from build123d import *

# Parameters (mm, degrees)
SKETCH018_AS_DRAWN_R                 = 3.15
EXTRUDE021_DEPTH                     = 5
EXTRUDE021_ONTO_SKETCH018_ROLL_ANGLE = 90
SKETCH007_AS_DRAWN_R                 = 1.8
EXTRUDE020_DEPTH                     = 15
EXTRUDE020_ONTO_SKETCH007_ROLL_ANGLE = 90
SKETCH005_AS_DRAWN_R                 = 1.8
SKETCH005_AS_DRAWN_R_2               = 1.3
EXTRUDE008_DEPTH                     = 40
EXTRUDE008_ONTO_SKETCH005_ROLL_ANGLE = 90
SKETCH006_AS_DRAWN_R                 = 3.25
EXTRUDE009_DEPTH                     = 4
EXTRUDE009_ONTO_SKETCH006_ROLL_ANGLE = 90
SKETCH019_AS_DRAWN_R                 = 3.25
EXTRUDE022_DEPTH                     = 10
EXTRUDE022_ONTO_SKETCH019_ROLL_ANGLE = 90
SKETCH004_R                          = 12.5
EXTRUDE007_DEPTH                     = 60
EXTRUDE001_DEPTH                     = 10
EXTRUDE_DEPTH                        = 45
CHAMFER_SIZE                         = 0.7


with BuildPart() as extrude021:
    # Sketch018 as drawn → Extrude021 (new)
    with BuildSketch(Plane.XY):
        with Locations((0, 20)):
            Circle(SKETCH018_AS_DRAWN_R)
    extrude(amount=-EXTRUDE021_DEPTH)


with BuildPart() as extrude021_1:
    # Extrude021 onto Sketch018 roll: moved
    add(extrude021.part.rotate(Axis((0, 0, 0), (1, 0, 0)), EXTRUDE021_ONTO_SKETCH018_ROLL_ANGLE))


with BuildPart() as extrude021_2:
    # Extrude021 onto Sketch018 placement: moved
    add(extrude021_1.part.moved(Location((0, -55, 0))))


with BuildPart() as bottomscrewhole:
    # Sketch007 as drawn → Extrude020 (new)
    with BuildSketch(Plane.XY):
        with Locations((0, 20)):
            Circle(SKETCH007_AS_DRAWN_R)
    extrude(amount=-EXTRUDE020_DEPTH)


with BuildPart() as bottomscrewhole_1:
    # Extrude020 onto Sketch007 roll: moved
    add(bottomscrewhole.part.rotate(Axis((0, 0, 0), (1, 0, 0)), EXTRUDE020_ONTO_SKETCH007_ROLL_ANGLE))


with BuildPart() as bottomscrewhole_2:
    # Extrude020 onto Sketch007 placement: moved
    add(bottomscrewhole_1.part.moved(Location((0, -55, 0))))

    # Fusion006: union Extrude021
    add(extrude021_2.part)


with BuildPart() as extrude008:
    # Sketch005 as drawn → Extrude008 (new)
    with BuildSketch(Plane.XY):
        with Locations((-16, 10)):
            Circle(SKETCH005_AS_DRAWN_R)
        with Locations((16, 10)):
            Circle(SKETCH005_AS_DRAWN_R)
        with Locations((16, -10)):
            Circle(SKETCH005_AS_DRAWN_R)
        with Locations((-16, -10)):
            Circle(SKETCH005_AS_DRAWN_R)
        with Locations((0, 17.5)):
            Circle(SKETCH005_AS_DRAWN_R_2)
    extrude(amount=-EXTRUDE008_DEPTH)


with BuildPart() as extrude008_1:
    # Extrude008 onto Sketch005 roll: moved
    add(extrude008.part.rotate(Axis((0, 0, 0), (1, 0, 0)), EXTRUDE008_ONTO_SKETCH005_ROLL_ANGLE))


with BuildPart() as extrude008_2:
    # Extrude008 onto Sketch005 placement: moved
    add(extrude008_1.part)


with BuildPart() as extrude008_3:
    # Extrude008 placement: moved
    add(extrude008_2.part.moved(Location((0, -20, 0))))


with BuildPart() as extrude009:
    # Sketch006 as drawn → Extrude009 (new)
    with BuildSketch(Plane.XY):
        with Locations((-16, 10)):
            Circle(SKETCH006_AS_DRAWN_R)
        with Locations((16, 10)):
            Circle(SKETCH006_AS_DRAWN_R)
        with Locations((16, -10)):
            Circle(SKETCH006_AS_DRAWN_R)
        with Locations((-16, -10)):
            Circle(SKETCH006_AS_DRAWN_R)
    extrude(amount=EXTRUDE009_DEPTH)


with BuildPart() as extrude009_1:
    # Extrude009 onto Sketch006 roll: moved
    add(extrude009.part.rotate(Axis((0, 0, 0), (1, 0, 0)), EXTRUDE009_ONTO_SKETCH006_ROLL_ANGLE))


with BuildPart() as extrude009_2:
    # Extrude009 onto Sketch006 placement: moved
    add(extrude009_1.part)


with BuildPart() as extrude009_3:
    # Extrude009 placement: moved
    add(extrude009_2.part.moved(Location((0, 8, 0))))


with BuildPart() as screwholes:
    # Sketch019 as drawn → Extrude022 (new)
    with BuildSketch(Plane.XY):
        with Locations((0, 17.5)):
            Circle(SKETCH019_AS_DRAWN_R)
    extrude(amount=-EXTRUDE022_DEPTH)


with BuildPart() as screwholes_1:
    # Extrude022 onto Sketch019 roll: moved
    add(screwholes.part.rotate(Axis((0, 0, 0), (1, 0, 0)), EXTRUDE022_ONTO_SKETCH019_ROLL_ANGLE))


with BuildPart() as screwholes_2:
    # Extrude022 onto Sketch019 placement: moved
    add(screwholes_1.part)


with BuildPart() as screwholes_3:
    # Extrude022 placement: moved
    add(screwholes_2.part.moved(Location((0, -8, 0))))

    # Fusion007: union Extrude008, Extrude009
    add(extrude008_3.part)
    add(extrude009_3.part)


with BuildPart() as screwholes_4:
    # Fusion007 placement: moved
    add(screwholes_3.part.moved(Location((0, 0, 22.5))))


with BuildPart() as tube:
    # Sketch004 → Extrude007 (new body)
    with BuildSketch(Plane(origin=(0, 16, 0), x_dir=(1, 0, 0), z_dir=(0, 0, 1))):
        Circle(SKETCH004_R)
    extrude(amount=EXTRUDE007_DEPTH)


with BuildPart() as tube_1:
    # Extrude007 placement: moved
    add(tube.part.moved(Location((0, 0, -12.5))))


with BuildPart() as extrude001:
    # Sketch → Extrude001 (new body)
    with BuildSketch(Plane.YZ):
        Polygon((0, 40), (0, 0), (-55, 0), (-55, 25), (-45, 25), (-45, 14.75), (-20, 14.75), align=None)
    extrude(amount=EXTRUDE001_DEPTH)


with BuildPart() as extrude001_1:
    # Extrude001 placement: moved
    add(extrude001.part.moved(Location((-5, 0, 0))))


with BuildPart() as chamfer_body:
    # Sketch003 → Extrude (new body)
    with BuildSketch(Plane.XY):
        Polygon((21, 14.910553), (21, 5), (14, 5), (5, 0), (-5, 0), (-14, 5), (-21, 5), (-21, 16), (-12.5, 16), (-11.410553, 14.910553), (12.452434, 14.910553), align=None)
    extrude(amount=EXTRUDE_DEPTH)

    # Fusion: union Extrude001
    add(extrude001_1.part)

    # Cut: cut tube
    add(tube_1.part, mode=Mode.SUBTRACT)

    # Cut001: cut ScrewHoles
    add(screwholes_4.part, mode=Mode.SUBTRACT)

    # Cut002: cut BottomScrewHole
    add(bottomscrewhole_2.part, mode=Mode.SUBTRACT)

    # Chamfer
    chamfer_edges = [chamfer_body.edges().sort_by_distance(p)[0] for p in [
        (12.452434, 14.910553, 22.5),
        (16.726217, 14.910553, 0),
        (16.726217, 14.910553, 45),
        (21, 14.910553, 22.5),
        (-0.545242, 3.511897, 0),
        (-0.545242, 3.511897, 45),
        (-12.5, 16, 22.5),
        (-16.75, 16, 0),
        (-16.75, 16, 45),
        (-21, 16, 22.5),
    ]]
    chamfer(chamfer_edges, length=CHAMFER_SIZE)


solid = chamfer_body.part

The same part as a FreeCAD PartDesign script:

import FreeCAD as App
import Part
import Sketcher
from FreeCAD import Vector
Q = App.Units.Quantity


def edges_at(feature, points):
    """Names of the edges that pass closest to the given points."""
    edges = feature.Shape.Edges
    near = lambda p: min(range(len(edges)), key=lambda i: edges[i].distToShape(Part.Vertex(*p))[0])
    return sorted({f"Edge{near(p) + 1}" for p in points})


def add_polygon(sketch, points):
    """Adds a closed chain of lines whose ends are joined by coincident constraints."""
    first, n = sketch.GeometryCount, len(points)
    for a, b in zip(points, points[1:] + points[:1]):
        sketch.addGeometry(Part.LineSegment(App.Vector(*a, 0), App.Vector(*b, 0)), False)
    for i in range(n):
        sketch.addConstraint(Sketcher.Constraint("Coincident", first + i, 2, first + (i + 1) % n, 1))

doc = App.newDocument("Part")
params = doc.addObject("Spreadsheet::Sheet", "Params")
for row, (alias, value) in enumerate([
    ("sketch1_diameter", "6.3 mm"),
    ("pad1_length", "5 mm"),
    ("sketch2_diameter", "3.6 mm"),
    ("pad2_length", "15 mm"),
    ("sketch3_diameter", "3.6 mm"),
    ("sketch3_diameter2", "2.6 mm"),
    ("pad3_length", "40 mm"),
    ("sketch4_diameter", "6.5 mm"),
    ("pad4_length", "4 mm"),
    ("sketch5_diameter", "6.5 mm"),
    ("pad5_length", "10 mm"),
    ("sketch6_diameter", "25 mm"),
    ("pad6_length", "60 mm"),
    ("sketch7_width", "25 mm"),
    ("sketch7_width2", "10 mm"),
    ("sketch7_width3", "55 mm"),
    ("sketch7_height", "40 mm"),
    ("sketch7_height2", "10.25 mm"),
    ("pad7_length", "10 mm"),
    ("sketch8_width", "7 mm"),
    ("sketch8_width2", "10 mm"),
    ("sketch8_height", "11 mm"),
    ("sketch8_width3", "8.5 mm"),
    ("pad8_length", "45 mm"),
    ("chamfer_size", "0.7 mm"),
], start=1):
    params.set(f"A{row}", alias)
    params.set(f"B{row}", "=" + value)
    params.setAlias(f"B{row}", alias)

body = doc.addObject("PartDesign::Body", "Body")

# Sketch on XY plane
sketch1 = doc.addObject("Sketcher::SketchObject", "Sketch")
body.addObject(sketch1)
sketch1.AttachmentSupport = (doc.XY_Plane, [""])
sketch1.MapMode = "FlatFace"
sketch1.addGeometry(Part.Circle(Vector(0, 20, 0), Vector(0, 0, 1), 3.1), False)
sketch1.addConstraint(Sketcher.Constraint("PointOnObject", 0, 3, -2))
sketch1.addConstraint(Sketcher.Constraint("Diameter", 0, 6.3))
sketch1.addConstraint(Sketcher.Constraint("DistanceY", -1, 1, 0, 3, 20.0))
sketch1.setExpression("Constraints[1]", "Params.sketch1_diameter")
pad1 = doc.addObject("PartDesign::Pad", "Pad")
body.addObject(pad1)
pad1.Profile = sketch1
pad1.setExpression("Length", "Params.pad1_length")
pad1.Reversed = True
body2 = doc.addObject("PartDesign::Body", "Body001")
doc.recompute()

body.Placement = App.Placement(Vector(0, 0, 0), App.Rotation(Vector(1, 0, 0), 90))
boolean = doc.addObject("PartDesign::Boolean", "Boolean")
body2.addObject(boolean)
boolean.Type = "Fuse"
boolean.addObjects([body])
body3 = doc.addObject("PartDesign::Body", "Body002")
doc.recompute()

body2.Placement = App.Placement(Vector(0, -55, 0), App.Rotation(Vector(0, 0, 1), 0))
boolean2 = doc.addObject("PartDesign::Boolean", "Boolean001")
body3.addObject(boolean2)
boolean2.Type = "Fuse"
boolean2.addObjects([body2])
body4 = doc.addObject("PartDesign::Body", "Body003")

# Sketch on XY plane
sketch2 = doc.addObject("Sketcher::SketchObject", "Sketch001")
body4.addObject(sketch2)
sketch2.AttachmentSupport = (doc.getObject("XY_Plane003"), [""])
sketch2.MapMode = "FlatFace"
sketch2.addGeometry(Part.Circle(Vector(0, 20, 0), Vector(0, 0, 1), 1.8), False)
sketch2.addConstraint(Sketcher.Constraint("PointOnObject", 0, 3, -2))
sketch2.addConstraint(Sketcher.Constraint("Diameter", 0, 3.6))
sketch2.addConstraint(Sketcher.Constraint("DistanceY", -1, 1, 0, 3, 20.0))
sketch2.setExpression("Constraints[1]", "Params.sketch2_diameter")
pad2 = doc.addObject("PartDesign::Pad", "Pad001")
body4.addObject(pad2)
pad2.Profile = sketch2
pad2.setExpression("Length", "Params.pad2_length")
pad2.Reversed = True
body5 = doc.addObject("PartDesign::Body", "Body004")
doc.recompute()

body4.Placement = App.Placement(Vector(0, 0, 0), App.Rotation(Vector(1, 0, 0), 90))
boolean3 = doc.addObject("PartDesign::Boolean", "Boolean002")
body5.addObject(boolean3)
boolean3.Type = "Fuse"
boolean3.addObjects([body4])
body6 = doc.addObject("PartDesign::Body", "Body005")
doc.recompute()

body5.Placement = App.Placement(Vector(0, -55, 0), App.Rotation(Vector(0, 0, 1), 0))
boolean4 = doc.addObject("PartDesign::Boolean", "Boolean003")
body6.addObject(boolean4)
boolean4.Type = "Fuse"
boolean4.addObjects([body5])
doc.recompute()

boolean5 = doc.addObject("PartDesign::Boolean", "Boolean004")
body6.addObject(boolean5)
boolean5.Type = "Fuse"
boolean5.addObjects([body3])
body7 = doc.addObject("PartDesign::Body", "Body006")
body7.AllowCompound = True

# Sketch on XY plane
sketch3 = doc.addObject("Sketcher::SketchObject", "Sketch002")
body7.addObject(sketch3)
sketch3.AttachmentSupport = (doc.getObject("XY_Plane006"), [""])
sketch3.MapMode = "FlatFace"
sketch3.addGeometry(Part.Circle(Vector(-16, 10, 0), Vector(0, 0, 1), 1.8), False)
sketch3.addGeometry(Part.Circle(Vector(16, 10, 0), Vector(0, 0, 1), 1.8), False)
sketch3.addGeometry(Part.Circle(Vector(16, -10, 0), Vector(0, 0, 1), 1.8), False)
sketch3.addGeometry(Part.Circle(Vector(-16, -10, 0), Vector(0, 0, 1), 1.8), False)
sketch3.addGeometry(Part.Circle(Vector(0, 17.5, 0), Vector(0, 0, 1), 1.3), False)
sketch3.addConstraint(Sketcher.Constraint("Equal", 0, 1))
sketch3.addConstraint(Sketcher.Constraint("Equal", 1, 2))
sketch3.addConstraint(Sketcher.Constraint("Equal", 2, 3))
sketch3.addConstraint(Sketcher.Constraint("Symmetric", 0, 3, 2, 3, -1, 1))
sketch3.addConstraint(Sketcher.Constraint("Symmetric", 1, 3, 3, 3, -1, 1))
sketch3.addConstraint(Sketcher.Constraint("Symmetric", 0, 3, 1, 3, -2))
sketch3.addConstraint(Sketcher.Constraint("PointOnObject", 4, 3, -2))
sketch3.addConstraint(Sketcher.Constraint("Diameter", 0, 3.6))
sketch3.addConstraint(Sketcher.Constraint("Diameter", 4, 2.6))
sketch3.addConstraint(Sketcher.Constraint("DistanceX", 0, 3, -1, 1, 16.0))
sketch3.addConstraint(Sketcher.Constraint("DistanceY", -1, 1, 0, 3, 10.0))
sketch3.addConstraint(Sketcher.Constraint("DistanceY", -1, 1, 4, 3, 17.5))
sketch3.setExpression("Constraints[7]", "Params.sketch3_diameter")
sketch3.setExpression("Constraints[8]", "Params.sketch3_diameter2")
pad3 = doc.addObject("PartDesign::Pad", "Pad002")
body7.addObject(pad3)
pad3.Profile = sketch3
pad3.setExpression("Length", "Params.pad3_length")
pad3.Reversed = True
body8 = doc.addObject("PartDesign::Body", "Body007")
body8.AllowCompound = True
doc.recompute()

body7.Placement = App.Placement(Vector(0, 0, 0), App.Rotation(Vector(1, 0, 0), 90))
boolean6 = doc.addObject("PartDesign::Boolean", "Boolean005")
body8.addObject(boolean6)
boolean6.Type = "Fuse"
boolean6.addObjects([body7])
body9 = doc.addObject("PartDesign::Body", "Body008")
body9.AllowCompound = True
doc.recompute()

body8.Placement = App.Placement(Vector(0, -20, 0), App.Rotation(Vector(0, 0, 1), 0))
boolean7 = doc.addObject("PartDesign::Boolean", "Boolean006")
body9.addObject(boolean7)
boolean7.Type = "Fuse"
boolean7.addObjects([body8])
body10 = doc.addObject("PartDesign::Body", "Body009")
body10.AllowCompound = True

# Sketch on XY plane
sketch4 = doc.addObject("Sketcher::SketchObject", "Sketch003")
body10.addObject(sketch4)
sketch4.AttachmentSupport = (doc.getObject("XY_Plane009"), [""])
sketch4.MapMode = "FlatFace"
sketch4.addGeometry(Part.Circle(Vector(-16, 10, 0), Vector(0, 0, 1), 3.2), False)
sketch4.addGeometry(Part.Circle(Vector(16, 10, 0), Vector(0, 0, 1), 3.2), False)
sketch4.addGeometry(Part.Circle(Vector(16, -10, 0), Vector(0, 0, 1), 3.2), False)
sketch4.addGeometry(Part.Circle(Vector(-16, -10, 0), Vector(0, 0, 1), 3.2), False)
sketch4.addConstraint(Sketcher.Constraint("Equal", 0, 1))
sketch4.addConstraint(Sketcher.Constraint("Equal", 1, 2))
sketch4.addConstraint(Sketcher.Constraint("Equal", 2, 3))
sketch4.addConstraint(Sketcher.Constraint("Symmetric", 0, 3, 2, 3, -1, 1))
sketch4.addConstraint(Sketcher.Constraint("Symmetric", 1, 3, 3, 3, -1, 1))
sketch4.addConstraint(Sketcher.Constraint("Symmetric", 0, 3, 1, 3, -2))
sketch4.addConstraint(Sketcher.Constraint("Diameter", 0, 6.5))
sketch4.addConstraint(Sketcher.Constraint("DistanceX", 0, 3, -1, 1, 16.0))
sketch4.addConstraint(Sketcher.Constraint("DistanceY", -1, 1, 0, 3, 10.0))
sketch4.setExpression("Constraints[6]", "Params.sketch4_diameter")
pad4 = doc.addObject("PartDesign::Pad", "Pad003")
body10.addObject(pad4)
pad4.Profile = sketch4
pad4.setExpression("Length", "Params.pad4_length")
body11 = doc.addObject("PartDesign::Body", "Body010")
body11.AllowCompound = True
doc.recompute()

body10.Placement = App.Placement(Vector(0, 0, 0), App.Rotation(Vector(1, 0, 0), 90))
boolean8 = doc.addObject("PartDesign::Boolean", "Boolean007")
body11.addObject(boolean8)
boolean8.Type = "Fuse"
boolean8.addObjects([body10])
body12 = doc.addObject("PartDesign::Body", "Body011")
body12.AllowCompound = True
doc.recompute()

body11.Placement = App.Placement(Vector(0, 8, 0), App.Rotation(Vector(0, 0, 1), 0))
boolean9 = doc.addObject("PartDesign::Boolean", "Boolean008")
body12.addObject(boolean9)
boolean9.Type = "Fuse"
boolean9.addObjects([body11])
body13 = doc.addObject("PartDesign::Body", "Body012")

# Sketch on XY plane
sketch5 = doc.addObject("Sketcher::SketchObject", "Sketch004")
body13.addObject(sketch5)
sketch5.AttachmentSupport = (doc.getObject("XY_Plane012"), [""])
sketch5.MapMode = "FlatFace"
sketch5.addGeometry(Part.Circle(Vector(0, 17.5, 0), Vector(0, 0, 1), 3.2), False)
sketch5.addConstraint(Sketcher.Constraint("PointOnObject", 0, 3, -2))
sketch5.addConstraint(Sketcher.Constraint("Diameter", 0, 6.5))
sketch5.addConstraint(Sketcher.Constraint("DistanceY", -1, 1, 0, 3, 17.5))
sketch5.setExpression("Constraints[1]", "Params.sketch5_diameter")
pad5 = doc.addObject("PartDesign::Pad", "Pad004")
body13.addObject(pad5)
pad5.Profile = sketch5
pad5.setExpression("Length", "Params.pad5_length")
pad5.Reversed = True
body14 = doc.addObject("PartDesign::Body", "Body013")
doc.recompute()

body13.Placement = App.Placement(Vector(0, 0, 0), App.Rotation(Vector(1, 0, 0), 90))
boolean10 = doc.addObject("PartDesign::Boolean", "Boolean009")
body14.addObject(boolean10)
boolean10.Type = "Fuse"
boolean10.addObjects([body13])
body15 = doc.addObject("PartDesign::Body", "Body014")
body15.AllowCompound = True
doc.recompute()

body14.Placement = App.Placement(Vector(0, -8, 0), App.Rotation(Vector(0, 0, 1), 0))
boolean11 = doc.addObject("PartDesign::Boolean", "Boolean010")
body15.addObject(boolean11)
boolean11.Type = "Fuse"
boolean11.addObjects([body14])
doc.recompute()

boolean12 = doc.addObject("PartDesign::Boolean", "Boolean011")
body15.addObject(boolean12)
boolean12.Type = "Fuse"
boolean12.addObjects([body9])
doc.recompute()

boolean13 = doc.addObject("PartDesign::Boolean", "Boolean012")
body15.addObject(boolean13)
boolean13.Type = "Fuse"
boolean13.addObjects([body12])
body16 = doc.addObject("PartDesign::Body", "Body015")
body16.AllowCompound = True
doc.recompute()

body15.Placement = App.Placement(Vector(0, 0, 22.5), App.Rotation(Vector(0, 0, 1), 0))
boolean14 = doc.addObject("PartDesign::Boolean", "Boolean013")
body16.addObject(boolean14)
boolean14.Type = "Fuse"
boolean14.addObjects([body15])
body17 = doc.addObject("PartDesign::Body", "Body016")

# Sketch on XY plane
sketch6 = doc.addObject("Sketcher::SketchObject", "Sketch005")
body17.addObject(sketch6)
sketch6.AttachmentSupport = (doc.getObject("XY_Plane016"), [""])
sketch6.MapMode = "FlatFace"
sketch6.addGeometry(Part.Circle(Vector(0, 16, 0), Vector(0, 0, 1), 12), False)
sketch6.addConstraint(Sketcher.Constraint("PointOnObject", 0, 3, -2))
sketch6.addConstraint(Sketcher.Constraint("Diameter", 0, 25.0))
sketch6.addConstraint(Sketcher.Constraint("DistanceY", -1, 1, 0, 3, 16.0))
sketch6.setExpression("Constraints[1]", "Params.sketch6_diameter")
pad6 = doc.addObject("PartDesign::Pad", "Pad005")
body17.addObject(pad6)
pad6.Profile = sketch6
pad6.setExpression("Length", "Params.pad6_length")
body18 = doc.addObject("PartDesign::Body", "Body017")
doc.recompute()

body17.Placement = App.Placement(Vector(0, 0, -12.5), App.Rotation(Vector(0, 0, 1), 0))
boolean15 = doc.addObject("PartDesign::Boolean", "Boolean014")
body18.addObject(boolean15)
boolean15.Type = "Fuse"
boolean15.addObjects([body17])
body19 = doc.addObject("PartDesign::Body", "Body018")

# Sketch on YZ plane
sketch7 = doc.addObject("Sketcher::SketchObject", "Sketch006")
body19.addObject(sketch7)
sketch7.AttachmentSupport = (doc.getObject("YZ_Plane018"), [""])
sketch7.MapMode = "FlatFace"
add_polygon(sketch7, [(0, 0), (0, 40), (-20, 15), (-45, 15), (-45, 25), (-55, 25), (-55, 0)])  # lines 0-6
sketch7.addConstraint(Sketcher.Constraint("Vertical", 0))
sketch7.addConstraint(Sketcher.Constraint("Horizontal", 2))
sketch7.addConstraint(Sketcher.Constraint("Vertical", 3))
sketch7.addConstraint(Sketcher.Constraint("Horizontal", 4))
sketch7.addConstraint(Sketcher.Constraint("Vertical", 5))
sketch7.addConstraint(Sketcher.Constraint("Horizontal", 6))
sketch7.addConstraint(Sketcher.Constraint("Coincident", 6, 2, -1, 1))
sketch7.addConstraint(Sketcher.Constraint("Equal", 2, 5))
sketch7.addConstraint(Sketcher.Constraint("DistanceX", 2, 2, 2, 1, 25.0))
sketch7.addConstraint(Sketcher.Constraint("DistanceX", 4, 2, 4, 1, 10.0))
sketch7.addConstraint(Sketcher.Constraint("DistanceX", 6, 1, 6, 2, 55.0))
sketch7.addConstraint(Sketcher.Constraint("DistanceY", 0, 1, 0, 2, 40.0))
sketch7.addConstraint(Sketcher.Constraint("DistanceY", 3, 1, 3, 2, 10.25))
sketch7.setExpression("Constraints[15]", "Params.sketch7_width")
sketch7.setExpression("Constraints[16]", "Params.sketch7_width2")
sketch7.setExpression("Constraints[17]", "Params.sketch7_width3")
sketch7.setExpression("Constraints[18]", "Params.sketch7_height")
sketch7.setExpression("Constraints[19]", "Params.sketch7_height2")
pad7 = doc.addObject("PartDesign::Pad", "Pad006")
body19.addObject(pad7)
pad7.Profile = sketch7
pad7.setExpression("Length", "Params.pad7_length")
body20 = doc.addObject("PartDesign::Body", "Body019")
doc.recompute()

body19.Placement = App.Placement(Vector(-5, 0, 0), App.Rotation(Vector(0, 0, 1), 0))
boolean16 = doc.addObject("PartDesign::Boolean", "Boolean015")
body20.addObject(boolean16)
boolean16.Type = "Fuse"
boolean16.addObjects([body19])
body21 = doc.addObject("PartDesign::Body", "Body020")

# Sketch on XY plane
sketch8 = doc.addObject("Sketcher::SketchObject", "Sketch007")
body21.addObject(sketch8)
sketch8.AttachmentSupport = (doc.getObject("XY_Plane020"), [""])
sketch8.MapMode = "FlatFace"
add_polygon(sketch8, [(21, 5), (21, 14.9), (-11.4, 14.9), (-12.5, 16), (-21, 16), (-21, 5), (-14, 5), (-5, 0), (5, 0), (14, 5)])  # lines 0-9
sketch8.addConstraint(Sketcher.Constraint("Vertical", 0))
sketch8.addConstraint(Sketcher.Constraint("Horizontal", 1))
sketch8.addConstraint(Sketcher.Constraint("Horizontal", 3))
sketch8.addConstraint(Sketcher.Constraint("Vertical", 4))
sketch8.addConstraint(Sketcher.Constraint("Horizontal", 5))
sketch8.addConstraint(Sketcher.Constraint("Horizontal", 7))
sketch8.addConstraint(Sketcher.Constraint("Horizontal", 9))
sketch8.addConstraint(Sketcher.Constraint("Symmetric", 6, 2, 7, 2, -1, 1))
sketch8.addConstraint(Sketcher.Constraint("Symmetric", 5, 2, 8, 2, -2))
sketch8.addConstraint(Sketcher.Constraint("Equal", 5, 9))
sketch8.addConstraint(Sketcher.Constraint("DistanceX", 5, 1, 5, 2, 7.0))
sketch8.addConstraint(Sketcher.Constraint("DistanceX", 7, 1, 7, 2, 10.0))
sketch8.addConstraint(Sketcher.Constraint("DistanceY", 4, 2, 4, 1, 11.0))
sketch8.addConstraint(Sketcher.Constraint("Angle", 2, Q("135 deg")))
sketch8.addConstraint(Sketcher.Constraint("DistanceX", 3, 2, 3, 1, 8.5))
sketch8.addConstraint(Sketcher.Constraint("DistanceX", -1, 1, 0, 2, 21.0))
sketch8.addConstraint(Sketcher.Constraint("DistanceY", -1, 1, 2, 2, 16.0))
sketch8.addConstraint(Sketcher.Constraint("Distance", 2, 1.540711))
sketch8.setExpression("Constraints[20]", "Params.sketch8_width")
sketch8.setExpression("Constraints[21]", "Params.sketch8_width2")
sketch8.setExpression("Constraints[22]", "Params.sketch8_height")
sketch8.setExpression("Constraints[24]", "Params.sketch8_width3")
pad8 = doc.addObject("PartDesign::Pad", "Pad007")
body21.addObject(pad8)
pad8.Profile = sketch8
pad8.setExpression("Length", "Params.pad8_length")
doc.recompute()

boolean17 = doc.addObject("PartDesign::Boolean", "Boolean016")
body21.addObject(boolean17)
boolean17.Type = "Fuse"
boolean17.addObjects([body20])
doc.recompute()

boolean18 = doc.addObject("PartDesign::Boolean", "Boolean017")
body21.addObject(boolean18)
boolean18.Type = "Cut"
boolean18.addObjects([body18])
doc.recompute()

boolean19 = doc.addObject("PartDesign::Boolean", "Boolean018")
body21.addObject(boolean19)
boolean19.Type = "Cut"
boolean19.addObjects([body16])
doc.recompute()

boolean20 = doc.addObject("PartDesign::Boolean", "Boolean019")
body21.addObject(boolean20)
boolean20.Type = "Cut"
boolean20.addObjects([body6])
doc.recompute()

chamfer = doc.addObject("PartDesign::Chamfer", "Chamfer")
body21.addObject(chamfer)
chamfer.Base = (boolean20, edges_at(boolean20, [
    (12.452, 14.911, 22.5),
    (16.726, 14.911, 0),
    (16.726, 14.911, 45),
    (21, 14.911, 22.5),
    (-0.545, 3.512, 0),
    (-0.545, 3.512, 45),
    (-12.5, 16, 22.5),
    (-16.75, 16, 0),
    (-16.75, 16, 45),
    (-21, 16, 22.5),
]))
chamfer.setExpression("Size", "Params.chamfer_size")

doc.recompute()
